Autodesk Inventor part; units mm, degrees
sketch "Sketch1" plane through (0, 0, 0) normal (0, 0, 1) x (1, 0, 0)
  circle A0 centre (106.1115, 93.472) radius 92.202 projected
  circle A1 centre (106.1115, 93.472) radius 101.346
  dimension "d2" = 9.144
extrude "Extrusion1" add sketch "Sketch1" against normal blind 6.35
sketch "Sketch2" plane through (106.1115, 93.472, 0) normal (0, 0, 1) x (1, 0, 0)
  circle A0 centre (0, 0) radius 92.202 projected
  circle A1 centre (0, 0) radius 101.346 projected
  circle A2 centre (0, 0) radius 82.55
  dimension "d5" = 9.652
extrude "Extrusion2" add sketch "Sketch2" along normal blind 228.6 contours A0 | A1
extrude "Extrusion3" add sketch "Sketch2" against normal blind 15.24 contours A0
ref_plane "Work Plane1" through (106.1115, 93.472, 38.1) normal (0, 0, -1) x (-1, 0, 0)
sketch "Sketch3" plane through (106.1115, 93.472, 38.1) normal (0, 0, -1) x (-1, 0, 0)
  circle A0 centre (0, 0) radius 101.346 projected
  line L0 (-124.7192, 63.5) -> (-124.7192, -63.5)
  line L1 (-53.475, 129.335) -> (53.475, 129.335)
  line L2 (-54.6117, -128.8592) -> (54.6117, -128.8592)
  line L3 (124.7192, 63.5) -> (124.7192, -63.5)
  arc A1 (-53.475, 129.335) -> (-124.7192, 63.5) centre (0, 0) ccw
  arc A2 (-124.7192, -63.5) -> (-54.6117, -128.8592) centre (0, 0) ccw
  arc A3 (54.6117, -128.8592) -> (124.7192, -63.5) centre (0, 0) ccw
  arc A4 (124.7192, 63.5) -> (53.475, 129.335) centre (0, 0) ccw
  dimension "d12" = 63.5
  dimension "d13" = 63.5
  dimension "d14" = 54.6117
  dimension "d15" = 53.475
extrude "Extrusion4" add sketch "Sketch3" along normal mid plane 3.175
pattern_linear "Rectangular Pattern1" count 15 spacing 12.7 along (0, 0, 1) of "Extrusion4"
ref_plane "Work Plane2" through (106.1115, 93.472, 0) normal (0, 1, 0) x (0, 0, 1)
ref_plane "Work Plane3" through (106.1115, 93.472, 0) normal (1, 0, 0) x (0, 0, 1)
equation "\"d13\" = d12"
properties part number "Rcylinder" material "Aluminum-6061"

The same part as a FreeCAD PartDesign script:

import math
import FreeCAD as App
import Part
import Sketcher
Q = App.Units.Quantity

doc = App.newDocument("Part")
params = doc.addObject("Spreadsheet::Sheet", "Params")
for row, (alias, value) in enumerate([
    ("sketch1_diameter", "7.98 in"),
    ("sketch1_diameter2", "7.26 in"),
    ("pad1_length", "0.25 in"),
    ("sketch2_diameter", "6.5 in"),
    ("sketch2_diameter2", "7.98 in"),
    ("pad2_length", "9 in"),
    ("sketch3_diameter", "6.5 in"),
    ("sketch3_diameter2", "7.26 in"),
    ("pad3_length", "0.6 in"),
    ("sketch4_height", "2.5 in"),
    ("sketch4_diameter", "7.98 in"),
    ("sketch4_radius", "5.51 in"),
    ("pad4_length", "0.125 in"),
    ("linearpattern_pitch", "0.5 in"),
], start=1):
    params.set(f"A{row}", alias)
    params.set(f"B{row}", "=" + value)
    params.setAlias(f"B{row}", alias)

body = doc.addObject("PartDesign::Body", "Body")

# Sketch on XY plane
sketch1 = body.newObject("Sketcher::SketchObject", "Sketch")
sketch1.AttachmentSupport = (doc.getObject("XY_Plane"), [""])
sketch1.MapMode = "FlatFace"
sketch1.addGeometry([
    Part.Circle(App.Vector(106, 93, 0), App.Vector(0, 0, 1), 101),
    Part.Circle(App.Vector(106, 93, 0), App.Vector(0, 0, 1), 92),
], False)
sketch1.addConstraint([
    Sketcher.Constraint("Coincident", 1, 3, 0, 3),
    Sketcher.Constraint("Diameter", 0, Q("7.98 in")),
    Sketcher.Constraint("Diameter", 1, Q("7.26 in")),
    Sketcher.Constraint("DistanceY", -1, 1, 0, 3, Q("3.68 in")),
    Sketcher.Constraint("DistanceX", -1, 1, 0, 3, Q("106.1115 mm")),
])
sketch1.setExpression("Constraints[1]", "Params.sketch1_diameter")
sketch1.setExpression("Constraints[2]", "Params.sketch1_diameter2")
pad1 = body.newObject("PartDesign::Pad", "Pad")
pad1.Profile = sketch1
pad1.setExpression("Length", "Params.pad1_length")
pad1.Reversed = True

# Sketch on XY plane
sketch2 = body.newObject("Sketcher::SketchObject", "Sketch001")
sketch2.AttachmentSupport = (doc.getObject("XY_Plane"), [""])
sketch2.MapMode = "FlatFace"
sketch2.addGeometry([
    Part.Circle(App.Vector(106, 93, 0), App.Vector(0, 0, 1), 101),
    Part.Circle(App.Vector(106, 93, 0), App.Vector(0, 0, 1), 83),
], False)
sketch2.addConstraint([
    Sketcher.Constraint("Coincident", 1, 3, 0, 3),
    Sketcher.Constraint("Diameter", 1, Q("6.5 in")),
    Sketcher.Constraint("Diameter", 0, Q("7.98 in")),
    Sketcher.Constraint("DistanceY", -1, 1, 0, 3, Q("3.68 in")),
    Sketcher.Constraint("DistanceX", -1, 1, 0, 3, Q("106.1115 mm")),
])
sketch2.setExpression("Constraints[1]", "Params.sketch2_diameter")
sketch2.setExpression("Constraints[2]", "Params.sketch2_diameter2")
pad2 = body.newObject("PartDesign::Pad", "Pad001")
pad2.Profile = sketch2
pad2.setExpression("Length", "Params.pad2_length")

# Sketch on XY plane
sketch3 = body.newObject("Sketcher::SketchObject", "Sketch002")
sketch3.AttachmentSupport = (doc.getObject("XY_Plane"), [""])
sketch3.MapMode = "FlatFace"
sketch3.addGeometry([
    Part.Circle(App.Vector(106, 93, 0), App.Vector(0, 0, 1), 92),
    Part.Circle(App.Vector(106, 93, 0), App.Vector(0, 0, 1), 83),
], False)
sketch3.addConstraint([
    Sketcher.Constraint("Coincident", 1, 3, 0, 3),
    Sketcher.Constraint("Diameter", 1, Q("6.5 in")),
    Sketcher.Constraint("Diameter", 0, Q("7.26 in")),
    Sketcher.Constraint("DistanceY", -1, 1, 0, 3, Q("3.68 in")),
    Sketcher.Constraint("DistanceX", -1, 1, 0, 3, Q("106.1115 mm")),
])
sketch3.setExpression("Constraints[1]", "Params.sketch3_diameter")
sketch3.setExpression("Constraints[2]", "Params.sketch3_diameter2")
pad3 = body.newObject("PartDesign::Pad", "Pad002")
pad3.Profile = sketch3
pad3.setExpression("Length", "Params.pad3_length")
pad3.Reversed = True

# Sketch on XY plane
sketch4 = body.newObject("Sketcher::SketchObject", "Sketch003")
sketch4.AttachmentSupport = (doc.getObject("XY_Plane"), [""])
sketch4.MapMode = "FlatFace"
sketch4.AttachmentOffset = App.Placement(App.Vector(0, 0, 1.5 * 25.4), App.Rotation())
sketch4.addGeometry([
    Part.ArcOfCircle(Part.Circle(App.Vector(106, 93, 0), App.Vector(0, 0, 1), 140), math.radians(27), math.radians(68)),  # 0
    Part.LineSegment(App.Vector(231, 157, 0), App.Vector(231, 30, 0)),  # 1
    Part.ArcOfCircle(Part.Circle(App.Vector(106, 93, 0), App.Vector(0, 0, 1), 140), math.radians(-67), math.radians(-27)),  # 2
    Part.LineSegment(App.Vector(161, -35, 0), App.Vector(51, -35, 0)),  # 3
    Part.ArcOfCircle(Part.Circle(App.Vector(106, 93, 0), App.Vector(0, 0, 1), 140), math.radians(-153), math.radians(-113)),  # 4
    Part.LineSegment(App.Vector(-19, 30, 0), App.Vector(-19, 157, 0)),  # 5
    Part.ArcOfCircle(Part.Circle(App.Vector(106, 93, 0), App.Vector(0, 0, 1), 140), math.radians(112), math.radians(153)),  # 6
    Part.LineSegment(App.Vector(53, 223, 0), App.Vector(160, 223, 0)),  # 7
    Part.Circle(App.Vector(106, 93, 0), App.Vector(0, 0, 1), 101),  # 8
], False)
sketch4.addConstraint([
    Sketcher.Constraint("Coincident", 0, 1, 1, 1),
    Sketcher.Constraint("Coincident", 1, 2, 2, 2),
    Sketcher.Constraint("Coincident", 2, 1, 3, 1),
    Sketcher.Constraint("Coincident", 3, 2, 4, 2),
    Sketcher.Constraint("Coincident", 4, 1, 5, 1),
    Sketcher.Constraint("Coincident", 5, 2, 6, 2),
    Sketcher.Constraint("Coincident", 6, 1, 7, 1),
    Sketcher.Constraint("Coincident", 7, 2, 0, 2),
    Sketcher.Constraint("Vertical", 1),
    Sketcher.Constraint("Horizontal", 3),
    Sketcher.Constraint("Vertical", 5),
    Sketcher.Constraint("Horizontal", 7),
    Sketcher.Constraint("Coincident", 2, 3, 0, 3),
    Sketcher.Constraint("Coincident", 4, 3, 0, 3),
    Sketcher.Constraint("Coincident", 6, 3, 0, 3),
    Sketcher.Constraint("Coincident", 8, 3, 0, 3),
    Sketcher.Constraint("Equal", 0, 2),
    Sketcher.Constraint("Equal", 2, 4),
    Sketcher.Constraint("Equal", 4, 6),
    Sketcher.Constraint("Horizontal", 1, 2, 4, 1),
    Sketcher.Constraint("DistanceY", 0, 3, 0, 1, Q("2.5 in")),
    Sketcher.Constraint("Diameter", 8, Q("7.98 in")),
    Sketcher.Constraint("Radius", 0, Q("5.51 in")),
    Sketcher.Constraint("DistanceY", -1, 1, 0, 3, Q("3.68 in")),
    Sketcher.Constraint("DistanceX", 0, 3, 2, 1, Q("54.6117 mm")),
    Sketcher.Constraint("DistanceX", 6, 1, 0, 3, Q("53.475 mm")),
    Sketcher.Constraint("DistanceX", -1, 1, 6, 1, Q("2.0723 in")),
])
sketch4.setExpression("Constraints[20]", "Params.sketch4_height")
sketch4.setExpression("Constraints[21]", "Params.sketch4_diameter")
sketch4.setExpression("Constraints[22]", "Params.sketch4_radius")
pad4 = body.newObject("PartDesign::Pad", "Pad003")
pad4.Profile = sketch4
pad4.setExpression("Length", "Params.pad4_length")
pad4.Midplane = True
doc.recompute()

linearpattern = body.newObject("PartDesign::LinearPattern", "LinearPattern")
linearpattern.Originals = [pad4]
linearpattern.Direction = (doc.getObject("Z_Axis"), [""])
linearpattern.Mode = "offset"
linearpattern.setExpression("Offset", "Params.linearpattern_pitch")
linearpattern.Occurrences = 15
body.Tip = linearpattern

doc.recompute()
